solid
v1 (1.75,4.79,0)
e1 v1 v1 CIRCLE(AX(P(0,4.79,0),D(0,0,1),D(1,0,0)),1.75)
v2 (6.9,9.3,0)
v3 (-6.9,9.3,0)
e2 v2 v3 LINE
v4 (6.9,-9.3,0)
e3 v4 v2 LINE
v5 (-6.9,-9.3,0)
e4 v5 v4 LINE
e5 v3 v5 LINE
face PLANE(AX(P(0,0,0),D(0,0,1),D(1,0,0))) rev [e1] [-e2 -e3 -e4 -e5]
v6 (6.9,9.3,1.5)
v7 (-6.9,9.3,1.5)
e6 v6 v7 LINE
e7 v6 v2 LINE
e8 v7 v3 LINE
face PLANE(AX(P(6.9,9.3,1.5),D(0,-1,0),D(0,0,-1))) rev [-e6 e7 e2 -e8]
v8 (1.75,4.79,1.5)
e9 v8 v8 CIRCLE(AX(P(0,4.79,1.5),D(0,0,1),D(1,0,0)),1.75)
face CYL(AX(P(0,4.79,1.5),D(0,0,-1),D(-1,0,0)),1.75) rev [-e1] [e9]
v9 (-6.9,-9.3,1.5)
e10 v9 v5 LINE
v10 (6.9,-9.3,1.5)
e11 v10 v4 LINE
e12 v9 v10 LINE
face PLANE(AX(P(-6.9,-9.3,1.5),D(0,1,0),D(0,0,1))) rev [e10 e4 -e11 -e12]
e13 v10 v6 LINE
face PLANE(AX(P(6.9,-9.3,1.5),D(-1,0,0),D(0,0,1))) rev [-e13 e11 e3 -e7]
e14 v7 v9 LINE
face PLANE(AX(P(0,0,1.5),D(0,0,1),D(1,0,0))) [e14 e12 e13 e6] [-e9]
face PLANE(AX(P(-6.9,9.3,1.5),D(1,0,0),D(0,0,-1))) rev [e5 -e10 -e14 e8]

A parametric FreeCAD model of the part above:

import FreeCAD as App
import Part
import Sketcher
Q = App.Units.Quantity


def add_polygon(sketch, points):
    """Adds a closed chain of lines whose ends are joined by coincident constraints."""
    first, n = sketch.GeometryCount, len(points)
    for a, b in zip(points, points[1:] + points[:1]):
        sketch.addGeometry(Part.LineSegment(App.Vector(*a, 0), App.Vector(*b, 0)), False)
    for i in range(n):
        sketch.addConstraint(Sketcher.Constraint("Coincident", first + i, 2, first + (i + 1) % n, 1))

doc = App.newDocument("Part")
params = doc.addObject("Spreadsheet::Sheet", "Params")
for row, (alias, value) in enumerate([
    ("sketch1_diameter", "3.5 mm"),
    ("sketch1_width", "13.8 mm"),
    ("sketch1_height", "18.6 mm"),
    ("pad1_length", "1.5 mm"),
], start=1):
    params.set(f"A{row}", alias)
    params.set(f"B{row}", "=" + value)
    params.setAlias(f"B{row}", alias)

body = doc.addObject("PartDesign::Body", "Body")

# Sketch on XY plane
sketch1 = body.newObject("Sketcher::SketchObject", "Sketch")
sketch1.AttachmentSupport = (doc.getObject("XY_Plane"), [""])
sketch1.MapMode = "FlatFace"
add_polygon(sketch1, [(6.9, -9.3), (6.9, 9.3), (-6.9, 9.3), (-6.9, -9.3)])  # lines 0-3
sketch1.addGeometry(Part.Circle(App.Vector(0, 4.8, 0), App.Vector(0, 0, 1), 1.8), False)  # 4
sketch1.addConstraint(Sketcher.Constraint("Vertical", 0))
sketch1.addConstraint(Sketcher.Constraint("Horizontal", 1))
sketch1.addConstraint(Sketcher.Constraint("Vertical", 2))
sketch1.addConstraint(Sketcher.Constraint("Horizontal", 3))
sketch1.addConstraint(Sketcher.Constraint("Symmetric", 0, 2, 2, 2, -1, 1))
sketch1.addConstraint(Sketcher.Constraint("PointOnObject", 4, 3, -2))
sketch1.addConstraint(Sketcher.Constraint("Diameter", 4, Q("3.5 mm")))
sketch1.addConstraint(Sketcher.Constraint("DistanceX", 1, 2, 1, 1, Q("13.8 mm")))
sketch1.addConstraint(Sketcher.Constraint("DistanceY", 0, 1, 0, 2, Q("18.6 mm")))
sketch1.addConstraint(Sketcher.Constraint("DistanceY", -1, 1, 4, 3, Q("4.79 mm")))
sketch1.setExpression("Constraints[10]", "Params.sketch1_diameter")
sketch1.setExpression("Constraints[11]", "Params.sketch1_width")
sketch1.setExpression("Constraints[12]", "Params.sketch1_height")
pad1 = body.newObject("PartDesign::Pad", "Pad")
pad1.Profile = sketch1
pad1.setExpression("Length", "Params.pad1_length")

doc.recompute()
